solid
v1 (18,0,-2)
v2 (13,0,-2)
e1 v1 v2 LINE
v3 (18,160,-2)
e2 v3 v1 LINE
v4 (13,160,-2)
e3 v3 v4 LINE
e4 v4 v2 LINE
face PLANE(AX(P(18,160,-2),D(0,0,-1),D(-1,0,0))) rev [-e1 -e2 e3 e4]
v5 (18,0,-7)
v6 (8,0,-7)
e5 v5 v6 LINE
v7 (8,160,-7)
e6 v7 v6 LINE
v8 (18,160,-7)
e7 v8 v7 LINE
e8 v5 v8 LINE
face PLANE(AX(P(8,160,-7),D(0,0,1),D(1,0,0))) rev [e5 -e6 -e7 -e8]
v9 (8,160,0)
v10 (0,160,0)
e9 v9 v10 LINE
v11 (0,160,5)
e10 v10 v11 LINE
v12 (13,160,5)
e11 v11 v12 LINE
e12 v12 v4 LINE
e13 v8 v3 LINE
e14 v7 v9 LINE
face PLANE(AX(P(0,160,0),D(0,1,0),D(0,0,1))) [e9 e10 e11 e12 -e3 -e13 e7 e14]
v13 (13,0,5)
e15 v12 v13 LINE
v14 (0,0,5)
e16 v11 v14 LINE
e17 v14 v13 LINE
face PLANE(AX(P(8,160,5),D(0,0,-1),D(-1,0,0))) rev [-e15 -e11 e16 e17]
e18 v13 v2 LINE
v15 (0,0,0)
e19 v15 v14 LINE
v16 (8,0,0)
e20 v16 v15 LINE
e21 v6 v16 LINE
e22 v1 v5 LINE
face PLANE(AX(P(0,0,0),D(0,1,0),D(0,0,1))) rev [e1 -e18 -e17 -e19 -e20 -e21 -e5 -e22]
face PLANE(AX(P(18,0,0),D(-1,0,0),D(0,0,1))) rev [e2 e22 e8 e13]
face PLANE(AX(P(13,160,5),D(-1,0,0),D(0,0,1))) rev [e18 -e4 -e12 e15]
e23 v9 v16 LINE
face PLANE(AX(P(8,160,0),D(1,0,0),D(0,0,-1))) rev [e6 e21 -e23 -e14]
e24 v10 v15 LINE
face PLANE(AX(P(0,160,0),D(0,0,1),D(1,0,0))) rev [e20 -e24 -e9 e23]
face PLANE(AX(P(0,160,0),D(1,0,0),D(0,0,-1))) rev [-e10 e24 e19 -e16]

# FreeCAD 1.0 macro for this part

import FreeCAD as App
import Part
import Sketcher
from FreeCAD import Vector
Q = App.Units.Quantity


def add_polygon(sketch, points):
    """Adds a closed chain of lines whose ends are joined by coincident constraints."""
    first, n = sketch.GeometryCount, len(points)
    for a, b in zip(points, points[1:] + points[:1]):
        sketch.addGeometry(Part.LineSegment(App.Vector(*a, 0), App.Vector(*b, 0)), False)
    for i in range(n):
        sketch.addConstraint(Sketcher.Constraint("Coincident", first + i, 2, first + (i + 1) % n, 1))

doc = App.newDocument("Part")
params = doc.addObject("Spreadsheet::Sheet", "Params")
for row, (alias, value) in enumerate([
    ("sketch1_width", "8 mm"),
    ("sketch1_width2", "13 mm"),
    ("sketch1_height", "12 mm"),
    ("pad1_length", "160 mm"),
    ("sketch2_width", "160 mm"),
    ("sketch2_height", "5 mm"),
    ("pad2_length", "5 mm"),
], start=1):
    params.set(f"A{row}", alias)
    params.set(f"B{row}", "=" + value)
    params.setAlias(f"B{row}", alias)

body = doc.addObject("PartDesign::Body", "Body")

sketch1 = body.newObject("Sketcher::SketchObject", "Sketch")
sketch1.AttachmentSupport = (doc.getObject("XZ_Plane"), [""])
sketch1.MapMode = "FlatFace"
add_polygon(sketch1, [(8, 0), (0, 0), (0, 5), (13, 5), (13, -7), (8, -7)])
sketch1.addConstraint([
    Sketcher.Constraint("Horizontal", 0),
    Sketcher.Constraint("Vertical", 1),
    Sketcher.Constraint("Horizontal", 2),
    Sketcher.Constraint("Vertical", 3),
    Sketcher.Constraint("Horizontal", 4),
    Sketcher.Constraint("Vertical", 5),
    Sketcher.Constraint("Coincident", 0, 2, -1, 1),
    Sketcher.Constraint("Equal", 4, 1),
    Sketcher.Constraint("DistanceX", 0, 2, 0, 1, Q("8 mm")),
    Sketcher.Constraint("DistanceX", 2, 1, 2, 2, Q("13 mm")),
    Sketcher.Constraint("DistanceY", 3, 2, 3, 1, Q("12 mm")),
])
sketch1.setExpression("Constraints[14]", "Params.sketch1_width")
sketch1.setExpression("Constraints[15]", "Params.sketch1_width2")
sketch1.setExpression("Constraints[16]", "Params.sketch1_height")
pad1 = body.newObject("PartDesign::Pad", "Pad")
pad1.Profile = sketch1
pad1.setExpression("Length", "Params.pad1_length")
pad1.Reversed = True

sketch2 = body.newObject("Sketcher::SketchObject", "Sketch001")
sketch2.AttachmentSupport = (doc.getObject("YZ_Plane"), [""])
sketch2.MapMode = "FlatFace"
sketch2.AttachmentOffset = App.Placement(Vector(0, 0, 13), App.Rotation())
add_polygon(sketch2, [(160, -2), (0, -2), (0, -7), (160, -7)])
sketch2.addConstraint([
    Sketcher.Constraint("Horizontal", 0),
    Sketcher.Constraint("Vertical", 1),
    Sketcher.Constraint("Horizontal", 2),
    Sketcher.Constraint("Vertical", 3),
    Sketcher.Constraint("PointOnObject", 0, 2, -2),
    Sketcher.Constraint("DistanceX", 0, 2, 0, 1, Q("160 mm")),
    Sketcher.Constraint("DistanceY", 1, 2, 1, 1, Q("5 mm")),
    Sketcher.Constraint("DistanceY", 0, 2, -1, 1, Q("2 mm")),
])
sketch2.setExpression("Constraints[9]", "Params.sketch2_width")
sketch2.setExpression("Constraints[10]", "Params.sketch2_height")
pad2 = body.newObject("PartDesign::Pad", "Pad001")
pad2.Profile = sketch2
pad2.setExpression("Length", "Params.pad2_length")

doc.recompute()
